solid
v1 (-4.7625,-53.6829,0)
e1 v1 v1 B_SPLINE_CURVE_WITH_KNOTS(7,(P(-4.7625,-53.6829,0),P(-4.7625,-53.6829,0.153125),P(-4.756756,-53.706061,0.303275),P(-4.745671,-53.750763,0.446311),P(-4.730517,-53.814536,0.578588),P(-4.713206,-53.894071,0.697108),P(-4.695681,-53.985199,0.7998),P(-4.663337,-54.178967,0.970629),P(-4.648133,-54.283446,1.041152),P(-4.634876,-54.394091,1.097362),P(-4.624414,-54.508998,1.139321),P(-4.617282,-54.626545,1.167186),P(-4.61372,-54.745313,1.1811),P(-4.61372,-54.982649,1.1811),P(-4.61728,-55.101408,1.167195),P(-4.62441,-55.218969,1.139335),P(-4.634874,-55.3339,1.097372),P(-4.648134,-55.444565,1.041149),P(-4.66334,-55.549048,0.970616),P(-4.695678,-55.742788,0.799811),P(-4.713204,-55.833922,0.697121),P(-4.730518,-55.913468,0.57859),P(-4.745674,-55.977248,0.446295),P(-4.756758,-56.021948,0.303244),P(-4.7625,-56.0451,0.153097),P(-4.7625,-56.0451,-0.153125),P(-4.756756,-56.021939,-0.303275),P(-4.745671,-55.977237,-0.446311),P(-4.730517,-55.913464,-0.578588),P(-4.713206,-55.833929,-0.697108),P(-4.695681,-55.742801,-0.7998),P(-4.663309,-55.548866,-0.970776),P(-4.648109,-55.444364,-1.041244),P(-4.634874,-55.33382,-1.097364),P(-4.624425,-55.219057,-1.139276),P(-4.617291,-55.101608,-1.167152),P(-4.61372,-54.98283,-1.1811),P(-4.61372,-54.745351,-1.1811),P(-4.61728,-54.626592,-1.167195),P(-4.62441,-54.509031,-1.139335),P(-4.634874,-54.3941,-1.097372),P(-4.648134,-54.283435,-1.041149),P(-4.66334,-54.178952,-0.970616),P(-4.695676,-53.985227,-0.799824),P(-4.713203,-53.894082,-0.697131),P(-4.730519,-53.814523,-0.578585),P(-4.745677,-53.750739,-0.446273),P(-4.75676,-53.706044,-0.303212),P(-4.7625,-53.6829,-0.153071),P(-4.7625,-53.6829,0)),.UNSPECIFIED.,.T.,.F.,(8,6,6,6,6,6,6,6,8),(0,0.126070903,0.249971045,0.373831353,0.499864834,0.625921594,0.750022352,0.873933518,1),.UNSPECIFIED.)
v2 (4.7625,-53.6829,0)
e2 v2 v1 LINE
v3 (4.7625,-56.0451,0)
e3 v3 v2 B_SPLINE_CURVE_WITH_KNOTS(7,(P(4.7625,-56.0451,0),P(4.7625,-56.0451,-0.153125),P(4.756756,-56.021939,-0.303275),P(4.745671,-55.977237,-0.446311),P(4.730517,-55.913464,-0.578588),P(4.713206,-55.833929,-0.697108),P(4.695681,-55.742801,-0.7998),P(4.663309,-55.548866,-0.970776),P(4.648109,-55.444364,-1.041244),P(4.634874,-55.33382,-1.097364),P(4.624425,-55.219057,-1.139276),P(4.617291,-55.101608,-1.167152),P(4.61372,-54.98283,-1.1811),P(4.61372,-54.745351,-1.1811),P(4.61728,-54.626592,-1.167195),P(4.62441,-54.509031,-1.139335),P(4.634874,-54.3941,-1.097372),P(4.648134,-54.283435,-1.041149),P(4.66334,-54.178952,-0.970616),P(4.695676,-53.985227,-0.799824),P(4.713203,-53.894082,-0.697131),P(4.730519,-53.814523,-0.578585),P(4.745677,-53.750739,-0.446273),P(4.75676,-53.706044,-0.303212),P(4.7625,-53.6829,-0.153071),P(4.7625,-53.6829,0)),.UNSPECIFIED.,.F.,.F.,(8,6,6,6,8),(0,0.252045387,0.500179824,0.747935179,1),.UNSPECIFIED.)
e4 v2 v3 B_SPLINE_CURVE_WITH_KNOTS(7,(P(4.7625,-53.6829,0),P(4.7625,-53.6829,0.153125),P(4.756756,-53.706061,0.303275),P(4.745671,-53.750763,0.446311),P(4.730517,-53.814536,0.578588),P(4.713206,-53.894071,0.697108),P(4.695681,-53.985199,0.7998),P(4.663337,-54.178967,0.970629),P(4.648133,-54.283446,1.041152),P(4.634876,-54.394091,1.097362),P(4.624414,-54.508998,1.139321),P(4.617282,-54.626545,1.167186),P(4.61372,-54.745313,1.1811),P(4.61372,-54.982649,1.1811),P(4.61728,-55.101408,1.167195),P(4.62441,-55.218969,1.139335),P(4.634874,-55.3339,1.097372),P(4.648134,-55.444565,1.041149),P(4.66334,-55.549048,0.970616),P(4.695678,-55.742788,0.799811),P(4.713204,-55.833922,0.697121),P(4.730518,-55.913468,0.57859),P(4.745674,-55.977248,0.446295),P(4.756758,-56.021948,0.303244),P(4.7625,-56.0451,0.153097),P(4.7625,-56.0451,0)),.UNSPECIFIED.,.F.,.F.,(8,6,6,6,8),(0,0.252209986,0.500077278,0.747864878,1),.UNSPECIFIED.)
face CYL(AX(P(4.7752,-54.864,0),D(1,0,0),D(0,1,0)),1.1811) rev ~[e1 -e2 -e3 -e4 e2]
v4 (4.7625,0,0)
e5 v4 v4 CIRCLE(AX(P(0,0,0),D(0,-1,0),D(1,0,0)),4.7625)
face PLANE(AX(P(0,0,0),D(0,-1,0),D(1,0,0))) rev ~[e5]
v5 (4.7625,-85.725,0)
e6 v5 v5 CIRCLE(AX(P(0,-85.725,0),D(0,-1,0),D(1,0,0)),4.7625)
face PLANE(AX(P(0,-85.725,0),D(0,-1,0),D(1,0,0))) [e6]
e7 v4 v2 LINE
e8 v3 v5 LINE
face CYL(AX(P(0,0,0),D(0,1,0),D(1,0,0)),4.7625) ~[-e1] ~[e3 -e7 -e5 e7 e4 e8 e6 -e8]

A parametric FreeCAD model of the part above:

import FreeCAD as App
import Part
import Sketcher
Q = App.Units.Quantity

doc = App.newDocument("Part")
params = doc.addObject("Spreadsheet::Sheet", "Params")
for row, (alias, value) in enumerate([
    ("sketch1_diameter", "0.375 in"),
    ("pad1_length", "3.375 in"),
    ("sketch2_diameter", "0.093 in"),
], start=1):
    params.set(f"A{row}", alias)
    params.set(f"B{row}", "=" + value)
    params.setAlias(f"B{row}", alias)

body = doc.addObject("PartDesign::Body", "Body")

# Sketch on XZ plane
sketch1 = doc.addObject("Sketcher::SketchObject", "Sketch")
body.addObject(sketch1)
sketch1.AttachmentSupport = (doc.XZ_Plane, [""])
sketch1.MapMode = "FlatFace"
sketch1.addGeometry(Part.Circle(App.Vector(0, 0, 0), App.Vector(0, 0, 1), 4.8), False)
sketch1.addConstraint([
    Sketcher.Constraint("Coincident", 0, 3, -1, 1),
    Sketcher.Constraint("Diameter", 0, Q("0.375 in")),
])
sketch1.setExpression("Constraints[1]", "Params.sketch1_diameter")
pad1 = doc.addObject("PartDesign::Pad", "Pad")
body.addObject(pad1)
pad1.Profile = sketch1
pad1.setExpression("Length", "Params.pad1_length")

# Sketch on YZ plane
sketch2 = doc.addObject("Sketcher::SketchObject", "Sketch001")
body.addObject(sketch2)
sketch2.AttachmentSupport = (doc.YZ_Plane, [""])
sketch2.MapMode = "FlatFace"
sketch2.AttachmentOffset = App.Placement(App.Vector(0, 0, 0.188 * 25.4), App.Rotation())
sketch2.addGeometry(Part.Circle(App.Vector(-54.9, 0, 0), App.Vector(0, 0, 1), 1.2), False)
sketch2.addConstraint([
    Sketcher.Constraint("PointOnObject", 0, 3, -1),
    Sketcher.Constraint("Diameter", 0, Q("0.093 in")),
    Sketcher.Constraint("DistanceX", 0, 3, -1, 1, Q("2.16 in")),
])
sketch2.setExpression("Constraints[1]", "Params.sketch2_diameter")
pocket1 = doc.addObject("PartDesign::Pocket", "Pocket")
body.addObject(pocket1)
pocket1.Profile = sketch2
pocket1.Type = "ThroughAll"

doc.recompute()
